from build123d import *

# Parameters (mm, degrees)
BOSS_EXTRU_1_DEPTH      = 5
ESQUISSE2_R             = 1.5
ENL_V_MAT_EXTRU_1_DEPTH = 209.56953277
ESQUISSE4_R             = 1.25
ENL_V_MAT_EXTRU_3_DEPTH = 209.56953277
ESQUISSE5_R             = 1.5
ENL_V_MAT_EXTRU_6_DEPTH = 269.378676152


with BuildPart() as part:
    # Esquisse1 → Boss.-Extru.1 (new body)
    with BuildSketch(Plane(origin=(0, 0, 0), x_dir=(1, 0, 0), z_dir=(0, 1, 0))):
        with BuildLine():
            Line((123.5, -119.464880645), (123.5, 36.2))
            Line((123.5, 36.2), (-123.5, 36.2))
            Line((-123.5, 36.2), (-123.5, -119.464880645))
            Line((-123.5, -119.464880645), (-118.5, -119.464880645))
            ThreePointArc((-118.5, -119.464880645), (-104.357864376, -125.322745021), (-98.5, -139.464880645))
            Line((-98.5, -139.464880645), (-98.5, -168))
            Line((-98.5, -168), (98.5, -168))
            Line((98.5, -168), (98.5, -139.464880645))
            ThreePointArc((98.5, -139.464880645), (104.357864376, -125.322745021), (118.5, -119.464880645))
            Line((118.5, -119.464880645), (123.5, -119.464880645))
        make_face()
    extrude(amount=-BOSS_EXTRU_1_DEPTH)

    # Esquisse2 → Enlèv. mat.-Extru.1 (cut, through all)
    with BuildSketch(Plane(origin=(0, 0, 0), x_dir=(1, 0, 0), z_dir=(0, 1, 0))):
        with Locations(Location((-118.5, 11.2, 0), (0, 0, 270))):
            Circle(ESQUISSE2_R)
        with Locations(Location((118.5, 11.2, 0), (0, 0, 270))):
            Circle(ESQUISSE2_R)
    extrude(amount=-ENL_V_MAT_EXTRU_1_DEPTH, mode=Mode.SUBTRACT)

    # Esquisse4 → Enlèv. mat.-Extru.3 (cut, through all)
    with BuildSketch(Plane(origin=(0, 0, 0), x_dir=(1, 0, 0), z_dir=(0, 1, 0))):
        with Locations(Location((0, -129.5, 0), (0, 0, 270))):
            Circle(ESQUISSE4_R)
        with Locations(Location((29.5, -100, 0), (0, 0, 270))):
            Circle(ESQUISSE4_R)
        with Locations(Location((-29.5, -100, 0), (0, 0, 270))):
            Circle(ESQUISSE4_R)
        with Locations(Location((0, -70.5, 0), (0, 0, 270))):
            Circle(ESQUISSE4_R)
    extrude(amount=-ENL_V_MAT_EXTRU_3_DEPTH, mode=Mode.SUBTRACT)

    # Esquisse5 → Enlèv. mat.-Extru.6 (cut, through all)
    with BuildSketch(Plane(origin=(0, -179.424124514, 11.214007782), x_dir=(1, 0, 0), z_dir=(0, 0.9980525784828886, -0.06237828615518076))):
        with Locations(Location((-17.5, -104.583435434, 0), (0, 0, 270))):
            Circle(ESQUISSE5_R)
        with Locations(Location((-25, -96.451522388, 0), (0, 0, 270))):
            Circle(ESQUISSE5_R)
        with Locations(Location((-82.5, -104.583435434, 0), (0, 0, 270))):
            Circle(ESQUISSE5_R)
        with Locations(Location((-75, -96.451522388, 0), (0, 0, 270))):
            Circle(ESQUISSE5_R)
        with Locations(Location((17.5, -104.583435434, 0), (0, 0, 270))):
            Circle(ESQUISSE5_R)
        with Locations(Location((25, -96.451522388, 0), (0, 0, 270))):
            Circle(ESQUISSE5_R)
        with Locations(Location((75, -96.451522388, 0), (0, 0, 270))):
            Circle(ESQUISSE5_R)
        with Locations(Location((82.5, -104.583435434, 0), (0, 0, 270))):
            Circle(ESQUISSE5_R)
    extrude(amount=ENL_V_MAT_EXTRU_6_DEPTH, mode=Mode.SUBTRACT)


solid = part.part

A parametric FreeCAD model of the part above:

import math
import FreeCAD as App
import Part
import Sketcher
from FreeCAD import Vector
Q = App.Units.Quantity

doc = App.newDocument("Part")
body = doc.addObject("PartDesign::Body", "Body")

# Sketch on XZ plane
sketch1 = body.newObject("Sketcher::SketchObject", "Sketch")
sketch1.AttachmentSupport = (doc.getObject("XZ_Plane"), [""])
sketch1.MapMode = "FlatFace"
sketch1.addGeometry(Part.LineSegment(Vector(124, 119, 0), Vector(124, -36, 0)), False)
sketch1.addGeometry(Part.LineSegment(Vector(124, -36, 0), Vector(-124, -36, 0)), False)
sketch1.addGeometry(Part.LineSegment(Vector(-124, -36, 0), Vector(-124, 119, 0)), False)
sketch1.addGeometry(Part.LineSegment(Vector(-124, 119, 0), Vector(-118, 119, 0)), False)
sketch1.addGeometry(Part.ArcOfCircle(Part.Circle(Vector(-118, 139, 0), Vector(0, 0, 1), 20), math.radians(-90), math.radians(0)), False)
sketch1.addGeometry(Part.LineSegment(Vector(-98, 139, 0), Vector(-98, 168, 0)), False)
sketch1.addGeometry(Part.LineSegment(Vector(-98, 168, 0), Vector(98, 168, 0)), False)
sketch1.addGeometry(Part.LineSegment(Vector(98, 168, 0), Vector(98, 139, 0)), False)
sketch1.addGeometry(Part.ArcOfCircle(Part.Circle(Vector(118, 139, 0), Vector(0, 0, 1), 20), math.radians(180), math.radians(270)), False)
sketch1.addGeometry(Part.LineSegment(Vector(118, 119, 0), Vector(124, 119, 0)), False)
sketch1.addConstraint(Sketcher.Constraint("Coincident", 0, 2, 1, 1))
sketch1.addConstraint(Sketcher.Constraint("Coincident", 1, 2, 2, 1))
sketch1.addConstraint(Sketcher.Constraint("Coincident", 2, 2, 3, 1))
sketch1.addConstraint(Sketcher.Constraint("Tangent", 3, 2, 4, 1))
sketch1.addConstraint(Sketcher.Constraint("Tangent", 4, 2, 5, 1))
sketch1.addConstraint(Sketcher.Constraint("Coincident", 5, 2, 6, 1))
sketch1.addConstraint(Sketcher.Constraint("Coincident", 6, 2, 7, 1))
sketch1.addConstraint(Sketcher.Constraint("Tangent", 7, 2, 8, 1))
sketch1.addConstraint(Sketcher.Constraint("Tangent", 8, 2, 9, 1))
sketch1.addConstraint(Sketcher.Constraint("Coincident", 9, 2, 0, 1))
sketch1.addConstraint(Sketcher.Constraint("Vertical", 0))
sketch1.addConstraint(Sketcher.Constraint("Horizontal", 1))
sketch1.addConstraint(Sketcher.Constraint("Vertical", 2))
sketch1.addConstraint(Sketcher.Constraint("Horizontal", 3))
sketch1.addConstraint(Sketcher.Constraint("Vertical", 5))
sketch1.addConstraint(Sketcher.Constraint("Horizontal", 6))
sketch1.addConstraint(Sketcher.Constraint("Vertical", 7))
sketch1.addConstraint(Sketcher.Constraint("Horizontal", 9))
sketch1.addConstraint(Sketcher.Constraint("Equal", 4, 8))
sketch1.addConstraint(Sketcher.Constraint("Symmetric", 4, 3, 8, 3, -2))
sketch1.addConstraint(Sketcher.Constraint("Equal", 3, 9))
sketch1.addConstraint(Sketcher.Constraint("Radius", 4, Q("20 mm")))
sketch1.addConstraint(Sketcher.Constraint("DistanceX", 1, 2, 1, 1, Q("247 mm")))
sketch1.addConstraint(Sketcher.Constraint("DistanceX", 3, 1, 3, 2, Q("5 mm")))
sketch1.addConstraint(Sketcher.Constraint("DistanceY", -1, 1, 5, 2, Q("168 mm")))
sketch1.addConstraint(Sketcher.Constraint("DistanceY", 0, 2, -1, 1, Q("36.2 mm")))
sketch1.addConstraint(Sketcher.Constraint("DistanceY", 0, 2, 0, 1, Q("155.664881 mm")))
pad1 = body.newObject("PartDesign::Pad", "Pad")
pad1.Profile = sketch1
pad1.Length = 5

# Sketch on XZ plane
sketch2 = body.newObject("Sketcher::SketchObject", "Sketch001")
sketch2.AttachmentSupport = (doc.getObject("XZ_Plane"), [""])
sketch2.MapMode = "FlatFace"
sketch2.addGeometry(Part.Circle(Vector(-118.5, -11.2, 0), Vector(0, 0, 1), 1.5), False)
sketch2.addGeometry(Part.Circle(Vector(118.5, -11.2, 0), Vector(0, 0, 1), 1.5), False)
sketch2.addConstraint(Sketcher.Constraint("Equal", 0, 1))
sketch2.addConstraint(Sketcher.Constraint("Symmetric", 0, 3, 1, 3, -2))
sketch2.addConstraint(Sketcher.Constraint("Diameter", 0, Q("3 mm")))
sketch2.addConstraint(Sketcher.Constraint("DistanceX", 0, 3, 1, 3, Q("237 mm")))
sketch2.addConstraint(Sketcher.Constraint("DistanceY", 0, 3, -1, 1, Q("11.2 mm")))
pocket1 = body.newObject("PartDesign::Pocket", "Pocket")
pocket1.Profile = sketch2
pocket1.Type = "ThroughAll"
pocket1.Reversed = True

# Sketch on XZ plane
sketch3 = body.newObject("Sketcher::SketchObject", "Sketch002")
sketch3.AttachmentSupport = (doc.getObject("XZ_Plane"), [""])
sketch3.MapMode = "FlatFace"
sketch3.addGeometry(Part.Circle(Vector(0, 129.5, 0), Vector(0, 0, 1), 1.2), False)
sketch3.addGeometry(Part.Circle(Vector(29.5, 100, 0), Vector(0, 0, 1), 1.2), False)
sketch3.addGeometry(Part.Circle(Vector(-29.5, 100, 0), Vector(0, 0, 1), 1.2), False)
sketch3.addGeometry(Part.Circle(Vector(0, 70.5, 0), Vector(0, 0, 1), 1.2), False)
sketch3.addConstraint(Sketcher.Constraint("Equal", 0, 1))
sketch3.addConstraint(Sketcher.Constraint("Equal", 1, 2))
sketch3.addConstraint(Sketcher.Constraint("Equal", 2, 3))
sketch3.addConstraint(Sketcher.Constraint("Symmetric", 1, 3, 2, 3, -2))
sketch3.addConstraint(Sketcher.Constraint("PointOnObject", 0, 3, -2))
sketch3.addConstraint(Sketcher.Constraint("PointOnObject", 3, 3, -2))
sketch3.addConstraint(Sketcher.Constraint("Diameter", 0, Q("2.5 mm")))
sketch3.addConstraint(Sketcher.Constraint("DistanceY", -1, 1, 1, 3, Q("100 mm")))
sketch3.addConstraint(Sketcher.Constraint("DistanceX", 2, 3, 1, 3, Q("59 mm")))
sketch3.addConstraint(Sketcher.Constraint("DistanceY", 3, 3, 0, 3, Q("59 mm")))
sketch3.addConstraint(Sketcher.Constraint("DistanceY", -1, 1, 0, 3, Q("129.5 mm")))
pocket2 = body.newObject("PartDesign::Pocket", "Pocket001")
pocket2.Profile = sketch3
pocket2.Type = "ThroughAll"
pocket2.Reversed = True

# Sketch on an angled plane
sketch4 = body.newObject("Sketcher::SketchObject", "Sketch003")
sketch4.Placement = App.Placement(Vector(0, -179.424125, 11.214008), App.Rotation(Vector(1, 0, 0), Vector(0, -0.062378286, -0.998052578), Vector(0, 0.998052578, -0.062378286), "ZXY"))
sketch4.addGeometry(Part.Circle(Vector(-17.5, -104.6, 0), Vector(0, 0, 1), 1.5), False)
sketch4.addGeometry(Part.Circle(Vector(-25, -96.5, 0), Vector(0, 0, 1), 1.5), False)
sketch4.addGeometry(Part.Circle(Vector(-82.5, -104.6, 0), Vector(0, 0, 1), 1.5), False)
sketch4.addGeometry(Part.Circle(Vector(-75, -96.5, 0), Vector(0, 0, 1), 1.5), False)
sketch4.addGeometry(Part.Circle(Vector(17.5, -104.6, 0), Vector(0, 0, 1), 1.5), False)
sketch4.addGeometry(Part.Circle(Vector(25, -96.5, 0), Vector(0, 0, 1), 1.5), False)
sketch4.addGeometry(Part.Circle(Vector(75, -96.5, 0), Vector(0, 0, 1), 1.5), False)
sketch4.addGeometry(Part.Circle(Vector(82.5, -104.6, 0), Vector(0, 0, 1), 1.5), False)
sketch4.addConstraint(Sketcher.Constraint("Equal", 0, 1))
sketch4.addConstraint(Sketcher.Constraint("Equal", 1, 2))
sketch4.addConstraint(Sketcher.Constraint("Equal", 2, 3))
sketch4.addConstraint(Sketcher.Constraint("Equal", 3, 4))
sketch4.addConstraint(Sketcher.Constraint("Equal", 4, 5))
sketch4.addConstraint(Sketcher.Constraint("Equal", 5, 6))
sketch4.addConstraint(Sketcher.Constraint("Equal", 6, 7))
sketch4.addConstraint(Sketcher.Constraint("Symmetric", 0, 3, 4, 3, -2))
sketch4.addConstraint(Sketcher.Constraint("Symmetric", 1, 3, 5, 3, -2))
sketch4.addConstraint(Sketcher.Constraint("Symmetric", 3, 3, 6, 3, -2))
sketch4.addConstraint(Sketcher.Constraint("Symmetric", 2, 3, 7, 3, -2))
sketch4.addConstraint(Sketcher.Constraint("Horizontal", 0, 3, 2, 3))
sketch4.addConstraint(Sketcher.Constraint("Horizontal", 1, 3, 3, 3))
sketch4.addConstraint(Sketcher.Constraint("Diameter", 0, Q("3 mm")))
sketch4.addConstraint(Sketcher.Constraint("DistanceX", 1, 3, -1, 1, Q("25 mm")))
sketch4.addConstraint(Sketcher.Constraint("DistanceX", 3, 3, -1, 1, Q("75 mm")))
sketch4.addConstraint(Sketcher.Constraint("DistanceX", 2, 3, 0, 3, Q("65 mm")))
sketch4.addConstraint(Sketcher.Constraint("DistanceX", 0, 3, 4, 3, Q("35 mm")))
sketch4.addConstraint(Sketcher.Constraint("DistanceY", 0, 3, -1, 1, Q("104.583435 mm")))
sketch4.addConstraint(Sketcher.Constraint("DistanceY", 1, 3, -1, 1, Q("96.451522 mm")))
pocket3 = body.newObject("PartDesign::Pocket", "Pocket002")
pocket3.Profile = sketch4
pocket3.Type = "ThroughAll"
pocket3.Reversed = True

doc.recompute()
